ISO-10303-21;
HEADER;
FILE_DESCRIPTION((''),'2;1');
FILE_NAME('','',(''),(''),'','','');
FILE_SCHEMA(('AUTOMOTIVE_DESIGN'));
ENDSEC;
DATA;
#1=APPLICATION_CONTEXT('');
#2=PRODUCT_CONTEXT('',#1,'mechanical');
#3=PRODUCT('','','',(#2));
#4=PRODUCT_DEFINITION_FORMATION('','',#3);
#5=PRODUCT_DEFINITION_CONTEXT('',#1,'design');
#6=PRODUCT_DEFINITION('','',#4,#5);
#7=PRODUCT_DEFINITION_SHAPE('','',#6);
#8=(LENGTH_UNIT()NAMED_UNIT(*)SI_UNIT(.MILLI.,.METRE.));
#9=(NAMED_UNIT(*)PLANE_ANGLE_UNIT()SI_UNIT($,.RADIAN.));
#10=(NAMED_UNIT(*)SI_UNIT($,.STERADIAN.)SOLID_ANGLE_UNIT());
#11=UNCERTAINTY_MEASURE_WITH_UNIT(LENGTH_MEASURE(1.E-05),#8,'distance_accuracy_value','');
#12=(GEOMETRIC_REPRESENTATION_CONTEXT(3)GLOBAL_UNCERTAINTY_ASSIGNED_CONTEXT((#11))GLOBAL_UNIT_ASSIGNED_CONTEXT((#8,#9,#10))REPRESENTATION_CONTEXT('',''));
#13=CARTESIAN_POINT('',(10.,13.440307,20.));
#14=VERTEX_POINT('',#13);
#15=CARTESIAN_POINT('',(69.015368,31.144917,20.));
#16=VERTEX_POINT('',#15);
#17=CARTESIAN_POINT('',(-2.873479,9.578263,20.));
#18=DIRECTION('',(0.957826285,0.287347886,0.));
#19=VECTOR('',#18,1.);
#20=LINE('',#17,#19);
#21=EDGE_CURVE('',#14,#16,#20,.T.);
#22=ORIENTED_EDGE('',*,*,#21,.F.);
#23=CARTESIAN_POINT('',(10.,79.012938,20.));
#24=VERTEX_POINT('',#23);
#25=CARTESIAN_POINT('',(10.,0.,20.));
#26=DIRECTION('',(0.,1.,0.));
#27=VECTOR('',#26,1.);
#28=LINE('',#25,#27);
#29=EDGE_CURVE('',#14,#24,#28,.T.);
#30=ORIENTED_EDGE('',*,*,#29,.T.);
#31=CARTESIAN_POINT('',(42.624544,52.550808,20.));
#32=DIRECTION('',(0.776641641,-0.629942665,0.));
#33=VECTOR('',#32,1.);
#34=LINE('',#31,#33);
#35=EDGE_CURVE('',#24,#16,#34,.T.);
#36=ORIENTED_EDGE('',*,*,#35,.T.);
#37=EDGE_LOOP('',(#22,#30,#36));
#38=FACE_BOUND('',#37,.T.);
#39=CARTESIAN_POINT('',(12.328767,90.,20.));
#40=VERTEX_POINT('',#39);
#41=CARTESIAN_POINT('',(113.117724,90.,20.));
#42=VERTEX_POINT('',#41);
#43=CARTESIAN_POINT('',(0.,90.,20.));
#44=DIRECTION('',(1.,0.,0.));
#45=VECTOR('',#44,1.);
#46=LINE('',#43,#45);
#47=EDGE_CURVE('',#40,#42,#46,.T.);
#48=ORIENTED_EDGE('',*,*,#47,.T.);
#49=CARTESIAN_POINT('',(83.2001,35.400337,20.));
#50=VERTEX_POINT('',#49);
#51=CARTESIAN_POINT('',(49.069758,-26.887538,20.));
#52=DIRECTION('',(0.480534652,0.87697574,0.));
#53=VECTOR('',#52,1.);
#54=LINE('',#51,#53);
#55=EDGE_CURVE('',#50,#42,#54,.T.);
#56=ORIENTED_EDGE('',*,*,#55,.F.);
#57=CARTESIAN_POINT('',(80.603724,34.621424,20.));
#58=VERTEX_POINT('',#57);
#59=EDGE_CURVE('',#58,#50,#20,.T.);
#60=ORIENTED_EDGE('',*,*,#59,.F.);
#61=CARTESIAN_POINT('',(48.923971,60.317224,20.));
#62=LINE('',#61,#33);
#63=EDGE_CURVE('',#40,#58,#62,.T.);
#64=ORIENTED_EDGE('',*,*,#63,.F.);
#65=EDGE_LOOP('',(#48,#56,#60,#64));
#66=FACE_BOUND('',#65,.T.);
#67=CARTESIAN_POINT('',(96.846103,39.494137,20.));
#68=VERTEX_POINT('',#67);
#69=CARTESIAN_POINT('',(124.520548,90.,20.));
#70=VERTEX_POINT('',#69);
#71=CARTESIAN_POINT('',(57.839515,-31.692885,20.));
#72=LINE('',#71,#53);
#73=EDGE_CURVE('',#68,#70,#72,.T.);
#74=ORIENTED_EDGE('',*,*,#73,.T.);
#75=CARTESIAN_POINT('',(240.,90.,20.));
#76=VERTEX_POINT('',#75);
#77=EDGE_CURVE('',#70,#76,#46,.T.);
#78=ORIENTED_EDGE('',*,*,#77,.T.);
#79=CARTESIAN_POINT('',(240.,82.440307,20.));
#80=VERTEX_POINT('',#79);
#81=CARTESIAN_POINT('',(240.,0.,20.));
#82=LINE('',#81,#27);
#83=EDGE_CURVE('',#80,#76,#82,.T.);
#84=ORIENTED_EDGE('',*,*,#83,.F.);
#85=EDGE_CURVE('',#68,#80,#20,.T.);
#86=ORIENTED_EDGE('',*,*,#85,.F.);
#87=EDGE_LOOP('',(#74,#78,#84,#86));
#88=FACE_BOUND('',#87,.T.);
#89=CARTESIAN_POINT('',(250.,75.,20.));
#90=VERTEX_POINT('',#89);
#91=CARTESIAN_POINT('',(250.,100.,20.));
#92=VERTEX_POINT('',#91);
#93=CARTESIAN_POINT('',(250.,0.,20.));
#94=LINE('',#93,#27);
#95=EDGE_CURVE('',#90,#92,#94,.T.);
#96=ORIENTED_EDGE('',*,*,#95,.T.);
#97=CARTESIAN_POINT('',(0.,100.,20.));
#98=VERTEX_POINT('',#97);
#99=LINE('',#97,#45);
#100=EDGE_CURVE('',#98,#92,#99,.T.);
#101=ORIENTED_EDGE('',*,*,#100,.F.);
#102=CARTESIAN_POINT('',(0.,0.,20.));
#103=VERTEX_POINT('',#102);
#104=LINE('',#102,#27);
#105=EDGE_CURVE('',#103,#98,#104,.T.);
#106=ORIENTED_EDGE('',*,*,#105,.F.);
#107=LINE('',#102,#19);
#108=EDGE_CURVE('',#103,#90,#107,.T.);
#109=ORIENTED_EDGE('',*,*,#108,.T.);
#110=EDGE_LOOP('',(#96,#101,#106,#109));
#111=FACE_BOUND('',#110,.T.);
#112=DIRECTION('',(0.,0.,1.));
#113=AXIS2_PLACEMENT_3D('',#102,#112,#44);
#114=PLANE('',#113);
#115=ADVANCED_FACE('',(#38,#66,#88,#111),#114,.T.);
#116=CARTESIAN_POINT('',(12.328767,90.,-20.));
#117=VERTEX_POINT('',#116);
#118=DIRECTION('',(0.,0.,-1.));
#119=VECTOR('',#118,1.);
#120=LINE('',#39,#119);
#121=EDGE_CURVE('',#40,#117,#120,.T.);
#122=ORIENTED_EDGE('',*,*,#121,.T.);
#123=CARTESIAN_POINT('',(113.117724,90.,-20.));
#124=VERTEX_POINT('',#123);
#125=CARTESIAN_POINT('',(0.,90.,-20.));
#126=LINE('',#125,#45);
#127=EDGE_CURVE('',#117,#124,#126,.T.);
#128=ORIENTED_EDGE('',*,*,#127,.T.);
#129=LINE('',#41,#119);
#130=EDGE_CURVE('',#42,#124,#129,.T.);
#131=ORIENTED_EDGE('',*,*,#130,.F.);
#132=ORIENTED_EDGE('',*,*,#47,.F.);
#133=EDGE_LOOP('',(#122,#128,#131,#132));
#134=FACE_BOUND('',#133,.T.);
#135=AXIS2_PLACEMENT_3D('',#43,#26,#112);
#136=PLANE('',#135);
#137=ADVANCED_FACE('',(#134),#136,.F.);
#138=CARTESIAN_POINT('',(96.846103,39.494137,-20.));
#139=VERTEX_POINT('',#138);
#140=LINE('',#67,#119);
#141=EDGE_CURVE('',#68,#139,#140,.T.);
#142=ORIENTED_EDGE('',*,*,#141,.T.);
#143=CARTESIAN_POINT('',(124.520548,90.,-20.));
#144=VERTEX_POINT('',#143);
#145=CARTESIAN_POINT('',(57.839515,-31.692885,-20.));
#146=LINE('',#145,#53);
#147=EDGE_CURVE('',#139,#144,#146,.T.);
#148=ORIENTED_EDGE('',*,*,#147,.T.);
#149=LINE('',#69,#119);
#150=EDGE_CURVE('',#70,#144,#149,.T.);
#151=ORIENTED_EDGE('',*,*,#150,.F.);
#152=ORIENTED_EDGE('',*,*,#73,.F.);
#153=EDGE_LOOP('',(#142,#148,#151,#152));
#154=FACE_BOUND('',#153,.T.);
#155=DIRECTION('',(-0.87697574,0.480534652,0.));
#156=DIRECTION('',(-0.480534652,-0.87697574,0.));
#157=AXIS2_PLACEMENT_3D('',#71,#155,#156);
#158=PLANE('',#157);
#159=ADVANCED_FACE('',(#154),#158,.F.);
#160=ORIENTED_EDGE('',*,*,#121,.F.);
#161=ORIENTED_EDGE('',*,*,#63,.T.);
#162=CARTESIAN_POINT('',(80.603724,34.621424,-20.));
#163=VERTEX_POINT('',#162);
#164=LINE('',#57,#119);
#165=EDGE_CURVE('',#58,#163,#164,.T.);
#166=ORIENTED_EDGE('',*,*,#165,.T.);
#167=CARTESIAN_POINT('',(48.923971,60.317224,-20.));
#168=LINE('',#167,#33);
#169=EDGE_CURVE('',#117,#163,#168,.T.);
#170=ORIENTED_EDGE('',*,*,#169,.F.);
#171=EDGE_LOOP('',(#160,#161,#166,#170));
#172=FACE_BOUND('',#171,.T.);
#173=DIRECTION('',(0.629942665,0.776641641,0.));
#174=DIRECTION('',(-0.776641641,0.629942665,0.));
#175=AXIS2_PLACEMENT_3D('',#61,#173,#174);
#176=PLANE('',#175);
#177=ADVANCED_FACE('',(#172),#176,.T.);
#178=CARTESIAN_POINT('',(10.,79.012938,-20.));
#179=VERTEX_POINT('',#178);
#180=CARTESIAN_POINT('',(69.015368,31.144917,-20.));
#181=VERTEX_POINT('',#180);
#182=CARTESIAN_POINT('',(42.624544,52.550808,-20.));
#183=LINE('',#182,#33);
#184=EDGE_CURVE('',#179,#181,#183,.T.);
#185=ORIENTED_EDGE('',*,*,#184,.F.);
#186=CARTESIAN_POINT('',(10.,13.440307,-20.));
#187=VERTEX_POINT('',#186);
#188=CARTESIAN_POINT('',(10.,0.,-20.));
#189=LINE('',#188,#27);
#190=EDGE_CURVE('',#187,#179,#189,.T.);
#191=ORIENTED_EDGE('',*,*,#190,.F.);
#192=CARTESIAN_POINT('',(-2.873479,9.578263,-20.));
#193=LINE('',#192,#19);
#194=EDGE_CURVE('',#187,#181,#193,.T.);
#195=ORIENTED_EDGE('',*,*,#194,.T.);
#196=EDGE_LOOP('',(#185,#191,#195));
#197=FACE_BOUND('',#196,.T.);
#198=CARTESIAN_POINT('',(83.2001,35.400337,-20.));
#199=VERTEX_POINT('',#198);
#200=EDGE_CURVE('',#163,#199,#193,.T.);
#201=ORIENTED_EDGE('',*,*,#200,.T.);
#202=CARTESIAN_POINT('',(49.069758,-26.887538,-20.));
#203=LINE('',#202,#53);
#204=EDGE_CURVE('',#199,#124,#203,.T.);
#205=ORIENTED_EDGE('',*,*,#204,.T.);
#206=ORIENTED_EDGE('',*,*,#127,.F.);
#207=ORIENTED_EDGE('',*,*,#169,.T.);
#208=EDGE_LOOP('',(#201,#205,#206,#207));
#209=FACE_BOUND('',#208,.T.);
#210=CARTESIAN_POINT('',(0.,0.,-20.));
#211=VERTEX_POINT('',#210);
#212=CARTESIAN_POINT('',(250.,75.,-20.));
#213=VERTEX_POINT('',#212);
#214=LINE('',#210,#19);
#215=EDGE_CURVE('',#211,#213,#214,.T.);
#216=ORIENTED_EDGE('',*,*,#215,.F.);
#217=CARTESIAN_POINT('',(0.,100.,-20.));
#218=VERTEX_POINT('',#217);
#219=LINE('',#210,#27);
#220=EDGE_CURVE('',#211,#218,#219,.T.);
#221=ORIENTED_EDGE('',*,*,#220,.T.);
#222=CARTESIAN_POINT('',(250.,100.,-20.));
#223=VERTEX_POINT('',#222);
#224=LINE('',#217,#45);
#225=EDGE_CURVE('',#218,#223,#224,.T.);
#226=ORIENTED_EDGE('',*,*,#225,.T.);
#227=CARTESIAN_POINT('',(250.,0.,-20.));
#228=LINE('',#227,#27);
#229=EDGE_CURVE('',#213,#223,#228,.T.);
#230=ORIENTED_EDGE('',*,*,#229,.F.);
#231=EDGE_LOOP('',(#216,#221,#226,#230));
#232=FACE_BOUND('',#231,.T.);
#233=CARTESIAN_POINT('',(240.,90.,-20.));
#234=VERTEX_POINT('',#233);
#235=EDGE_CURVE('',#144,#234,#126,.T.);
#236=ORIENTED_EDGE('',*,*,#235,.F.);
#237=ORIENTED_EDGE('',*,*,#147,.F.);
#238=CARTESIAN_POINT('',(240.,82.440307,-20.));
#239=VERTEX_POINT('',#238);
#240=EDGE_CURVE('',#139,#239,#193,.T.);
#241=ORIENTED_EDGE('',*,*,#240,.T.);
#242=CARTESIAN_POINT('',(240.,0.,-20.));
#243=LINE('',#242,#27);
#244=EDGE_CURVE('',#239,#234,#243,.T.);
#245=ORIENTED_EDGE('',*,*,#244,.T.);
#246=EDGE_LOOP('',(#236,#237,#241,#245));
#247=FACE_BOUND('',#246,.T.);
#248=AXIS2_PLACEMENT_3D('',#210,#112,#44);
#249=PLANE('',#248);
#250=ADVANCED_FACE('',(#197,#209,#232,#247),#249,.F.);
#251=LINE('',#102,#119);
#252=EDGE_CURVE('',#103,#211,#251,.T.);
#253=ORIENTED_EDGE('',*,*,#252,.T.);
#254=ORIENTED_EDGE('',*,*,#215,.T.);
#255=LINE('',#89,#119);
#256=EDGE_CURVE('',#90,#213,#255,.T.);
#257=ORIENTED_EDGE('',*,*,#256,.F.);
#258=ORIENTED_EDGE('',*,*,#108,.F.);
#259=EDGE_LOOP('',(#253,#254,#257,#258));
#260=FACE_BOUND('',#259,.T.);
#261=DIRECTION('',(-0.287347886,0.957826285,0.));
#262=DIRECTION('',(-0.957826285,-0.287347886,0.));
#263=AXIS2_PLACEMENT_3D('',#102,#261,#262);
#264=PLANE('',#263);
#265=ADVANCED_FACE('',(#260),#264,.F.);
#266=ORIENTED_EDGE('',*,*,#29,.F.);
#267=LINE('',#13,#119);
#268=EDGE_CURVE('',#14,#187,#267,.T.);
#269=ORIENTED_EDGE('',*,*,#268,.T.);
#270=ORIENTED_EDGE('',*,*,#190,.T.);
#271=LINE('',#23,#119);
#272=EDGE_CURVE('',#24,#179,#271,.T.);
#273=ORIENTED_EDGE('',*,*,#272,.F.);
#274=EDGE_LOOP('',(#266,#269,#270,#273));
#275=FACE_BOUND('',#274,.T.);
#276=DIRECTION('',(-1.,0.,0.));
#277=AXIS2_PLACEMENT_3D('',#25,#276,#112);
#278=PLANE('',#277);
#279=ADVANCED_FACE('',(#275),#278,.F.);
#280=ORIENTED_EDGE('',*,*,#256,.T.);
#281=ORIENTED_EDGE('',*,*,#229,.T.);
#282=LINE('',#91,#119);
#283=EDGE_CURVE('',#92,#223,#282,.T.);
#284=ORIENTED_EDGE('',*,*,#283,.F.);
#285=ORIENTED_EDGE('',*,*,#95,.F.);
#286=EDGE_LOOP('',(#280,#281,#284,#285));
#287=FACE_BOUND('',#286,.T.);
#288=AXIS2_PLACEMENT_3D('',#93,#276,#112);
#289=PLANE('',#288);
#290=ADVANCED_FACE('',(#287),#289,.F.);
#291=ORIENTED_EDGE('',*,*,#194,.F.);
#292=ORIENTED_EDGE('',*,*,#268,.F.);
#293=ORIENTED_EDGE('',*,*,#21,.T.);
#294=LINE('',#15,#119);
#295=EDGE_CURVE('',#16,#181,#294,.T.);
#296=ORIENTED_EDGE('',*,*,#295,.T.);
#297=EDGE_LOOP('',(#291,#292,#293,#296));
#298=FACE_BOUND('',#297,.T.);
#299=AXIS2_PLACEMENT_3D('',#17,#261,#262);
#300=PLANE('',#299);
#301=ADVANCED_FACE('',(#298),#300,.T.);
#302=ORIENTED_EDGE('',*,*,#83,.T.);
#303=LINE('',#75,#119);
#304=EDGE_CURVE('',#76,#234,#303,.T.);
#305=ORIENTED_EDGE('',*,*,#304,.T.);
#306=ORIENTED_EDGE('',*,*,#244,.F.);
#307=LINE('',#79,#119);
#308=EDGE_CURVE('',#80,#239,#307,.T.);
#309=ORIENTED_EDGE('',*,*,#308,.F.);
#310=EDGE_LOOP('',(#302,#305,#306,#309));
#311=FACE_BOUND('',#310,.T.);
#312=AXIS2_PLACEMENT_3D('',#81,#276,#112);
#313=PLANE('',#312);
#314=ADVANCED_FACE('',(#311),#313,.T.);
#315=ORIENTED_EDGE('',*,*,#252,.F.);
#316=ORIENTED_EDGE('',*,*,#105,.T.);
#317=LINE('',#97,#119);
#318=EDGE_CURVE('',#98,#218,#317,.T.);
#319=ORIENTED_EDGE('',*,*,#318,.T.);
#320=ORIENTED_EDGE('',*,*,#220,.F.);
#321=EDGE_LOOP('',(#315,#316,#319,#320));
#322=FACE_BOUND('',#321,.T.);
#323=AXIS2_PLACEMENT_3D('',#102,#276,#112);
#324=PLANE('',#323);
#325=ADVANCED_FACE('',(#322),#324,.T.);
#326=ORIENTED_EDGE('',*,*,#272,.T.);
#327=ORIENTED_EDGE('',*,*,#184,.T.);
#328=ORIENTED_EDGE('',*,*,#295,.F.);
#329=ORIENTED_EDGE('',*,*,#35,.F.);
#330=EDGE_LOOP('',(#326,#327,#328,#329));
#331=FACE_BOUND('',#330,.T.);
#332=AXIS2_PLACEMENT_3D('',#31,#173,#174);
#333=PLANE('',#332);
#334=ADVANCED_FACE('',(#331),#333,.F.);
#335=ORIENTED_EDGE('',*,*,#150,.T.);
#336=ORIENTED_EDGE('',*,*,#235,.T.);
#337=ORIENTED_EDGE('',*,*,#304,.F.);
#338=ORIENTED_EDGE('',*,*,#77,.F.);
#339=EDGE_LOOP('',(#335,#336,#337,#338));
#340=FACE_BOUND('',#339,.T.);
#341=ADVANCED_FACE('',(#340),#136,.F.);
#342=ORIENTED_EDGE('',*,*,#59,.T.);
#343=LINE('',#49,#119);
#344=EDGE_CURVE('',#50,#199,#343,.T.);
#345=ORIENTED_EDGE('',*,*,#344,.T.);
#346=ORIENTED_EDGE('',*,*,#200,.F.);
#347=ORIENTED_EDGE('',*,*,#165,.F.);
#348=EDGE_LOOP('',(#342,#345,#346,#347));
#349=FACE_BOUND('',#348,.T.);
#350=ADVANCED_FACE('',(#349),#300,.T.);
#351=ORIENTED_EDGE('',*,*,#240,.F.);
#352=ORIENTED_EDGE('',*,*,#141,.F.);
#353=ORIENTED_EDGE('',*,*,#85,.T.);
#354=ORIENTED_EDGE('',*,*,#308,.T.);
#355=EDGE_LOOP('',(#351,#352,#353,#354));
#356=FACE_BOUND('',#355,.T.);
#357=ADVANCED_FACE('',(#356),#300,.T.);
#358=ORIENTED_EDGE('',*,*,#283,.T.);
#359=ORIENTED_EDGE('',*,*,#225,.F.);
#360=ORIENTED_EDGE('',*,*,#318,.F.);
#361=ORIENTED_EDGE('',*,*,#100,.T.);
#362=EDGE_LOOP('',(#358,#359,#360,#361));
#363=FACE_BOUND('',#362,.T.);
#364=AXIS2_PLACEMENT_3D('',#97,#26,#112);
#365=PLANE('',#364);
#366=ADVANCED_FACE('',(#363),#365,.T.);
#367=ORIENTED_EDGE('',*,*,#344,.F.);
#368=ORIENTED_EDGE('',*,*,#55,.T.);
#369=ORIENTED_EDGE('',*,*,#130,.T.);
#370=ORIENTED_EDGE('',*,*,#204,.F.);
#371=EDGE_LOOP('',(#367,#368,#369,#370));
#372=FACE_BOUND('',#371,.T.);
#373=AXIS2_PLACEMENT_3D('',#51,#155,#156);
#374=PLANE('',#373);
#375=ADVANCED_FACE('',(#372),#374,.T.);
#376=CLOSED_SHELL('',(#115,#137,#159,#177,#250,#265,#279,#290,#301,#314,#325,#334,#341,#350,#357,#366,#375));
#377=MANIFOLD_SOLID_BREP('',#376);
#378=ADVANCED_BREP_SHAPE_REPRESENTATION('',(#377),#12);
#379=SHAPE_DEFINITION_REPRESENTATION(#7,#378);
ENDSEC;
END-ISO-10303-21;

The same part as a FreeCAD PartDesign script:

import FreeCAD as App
import Part
import Sketcher
Q = App.Units.Quantity


def add_polygon(sketch, points):
    """Adds a closed chain of lines whose ends are joined by coincident constraints."""
    first, n = sketch.GeometryCount, len(points)
    for a, b in zip(points, points[1:] + points[:1]):
        sketch.addGeometry(Part.LineSegment(App.Vector(*a, 0), App.Vector(*b, 0)), False)
    for i in range(n):
        sketch.addConstraint(Sketcher.Constraint("Coincident", first + i, 2, first + (i + 1) % n, 1))

doc = App.newDocument("Part")
body = doc.addObject("PartDesign::Body", "Body")

sketch1 = doc.addObject("Sketcher::SketchObject", "Sketch")
body.addObject(sketch1)
sketch1.AttachmentSupport = (doc.XY_Plane, [""])
sketch1.MapMode = "FlatFace"
add_polygon(sketch1, [(250, 100), (0, 100), (0, 0), (250, 75)])
add_polygon(sketch1, [(69.015368, 31.144917), (10, 13.440307), (10, 79.012938)])
add_polygon(sketch1, [(80.603724, 34.621424), (12.328767, 90), (113.117724, 90), (83.2001, 35.400337)])
add_polygon(sketch1, [(96.846103, 39.494137), (124.520548, 90), (240, 90), (240, 82.440307), (229.461692, 79.278814), (209.367183, 73.250461)])
sketch1.addConstraint([
    Sketcher.Constraint("Horizontal", 0),
    Sketcher.Constraint("Vertical", 1),
    Sketcher.Constraint("Vertical", 3),
    Sketcher.Constraint("Vertical", 5),
    Sketcher.Constraint("Horizontal", 8),
    Sketcher.Constraint("Horizontal", 12),
    Sketcher.Constraint("Vertical", 13),
    Sketcher.Constraint("Coincident", 1, 2, -1, 1),
    Sketcher.Constraint("Parallel", 2, 4),
    Sketcher.Constraint("Parallel", 6, 7),
    Sketcher.Constraint("Parallel", 4, 10),
    Sketcher.Constraint("Parallel", 9, 11),
    Sketcher.Constraint("Parallel", 10, 14),
    Sketcher.Constraint("Parallel", 14, 15),
    Sketcher.Constraint("Parallel", 15, 16),
    Sketcher.Constraint("Horizontal", 8, 2, 11, 2),
    Sketcher.Constraint("DistanceX", 0, 2, 0, 1, Q("250 mm")),
    Sketcher.Constraint("DistanceY", 1, 2, 1, 1, Q("100 mm")),
    Sketcher.Constraint("DistanceY", 3, 1, 3, 2, Q("25 mm")),
    Sketcher.Constraint("DistanceX", -1, 1, 4, 2, Q("10 mm")),
    Sketcher.Constraint("DistanceY", -1, 1, 7, 2, Q("90 mm")),
    Sketcher.Constraint("DistanceX", -1, 1, 12, 2, Q("240 mm")),
    Sketcher.Constraint("DistanceX", 10, 2, 8, 2, Q("32.514 mm")),
    Sketcher.Constraint("Distance", 6, Q("75.987901 mm")),
    Sketcher.Constraint("DistanceY", 5, 1, 5, 2, Q("65.572631 mm")),
    Sketcher.Constraint("DistanceX", -1, 1, 9, 2, Q("83.2001 mm")),
    Sketcher.Constraint("DistanceX", 7, 2, 6, 2, Q("56.686601 mm")),
    Sketcher.Constraint("DistanceY", 9, 2, 5, 2, Q("43.612601 mm")),
    Sketcher.Constraint("DistanceY", 9, 2, 16, 2, Q("4.093801 mm")),
    Sketcher.Constraint("DistanceX", 8, 1, 8, 2, Q("100.788957 mm")),
    Sketcher.Constraint("DistanceX", 12, 1, 12, 2, Q("115.479452 mm")),
    Sketcher.Constraint("DistanceY", -1, 1, 15, 2, Q("73.250461 mm")),
    Sketcher.Constraint("DistanceX", 15, 2, 14, 2, Q("20.094509 mm")),
])
pad1 = doc.addObject("PartDesign::Pad", "Pad")
body.addObject(pad1)
pad1.Profile = sketch1
pad1.Length = 40
pad1.Midplane = True

doc.recompute()
